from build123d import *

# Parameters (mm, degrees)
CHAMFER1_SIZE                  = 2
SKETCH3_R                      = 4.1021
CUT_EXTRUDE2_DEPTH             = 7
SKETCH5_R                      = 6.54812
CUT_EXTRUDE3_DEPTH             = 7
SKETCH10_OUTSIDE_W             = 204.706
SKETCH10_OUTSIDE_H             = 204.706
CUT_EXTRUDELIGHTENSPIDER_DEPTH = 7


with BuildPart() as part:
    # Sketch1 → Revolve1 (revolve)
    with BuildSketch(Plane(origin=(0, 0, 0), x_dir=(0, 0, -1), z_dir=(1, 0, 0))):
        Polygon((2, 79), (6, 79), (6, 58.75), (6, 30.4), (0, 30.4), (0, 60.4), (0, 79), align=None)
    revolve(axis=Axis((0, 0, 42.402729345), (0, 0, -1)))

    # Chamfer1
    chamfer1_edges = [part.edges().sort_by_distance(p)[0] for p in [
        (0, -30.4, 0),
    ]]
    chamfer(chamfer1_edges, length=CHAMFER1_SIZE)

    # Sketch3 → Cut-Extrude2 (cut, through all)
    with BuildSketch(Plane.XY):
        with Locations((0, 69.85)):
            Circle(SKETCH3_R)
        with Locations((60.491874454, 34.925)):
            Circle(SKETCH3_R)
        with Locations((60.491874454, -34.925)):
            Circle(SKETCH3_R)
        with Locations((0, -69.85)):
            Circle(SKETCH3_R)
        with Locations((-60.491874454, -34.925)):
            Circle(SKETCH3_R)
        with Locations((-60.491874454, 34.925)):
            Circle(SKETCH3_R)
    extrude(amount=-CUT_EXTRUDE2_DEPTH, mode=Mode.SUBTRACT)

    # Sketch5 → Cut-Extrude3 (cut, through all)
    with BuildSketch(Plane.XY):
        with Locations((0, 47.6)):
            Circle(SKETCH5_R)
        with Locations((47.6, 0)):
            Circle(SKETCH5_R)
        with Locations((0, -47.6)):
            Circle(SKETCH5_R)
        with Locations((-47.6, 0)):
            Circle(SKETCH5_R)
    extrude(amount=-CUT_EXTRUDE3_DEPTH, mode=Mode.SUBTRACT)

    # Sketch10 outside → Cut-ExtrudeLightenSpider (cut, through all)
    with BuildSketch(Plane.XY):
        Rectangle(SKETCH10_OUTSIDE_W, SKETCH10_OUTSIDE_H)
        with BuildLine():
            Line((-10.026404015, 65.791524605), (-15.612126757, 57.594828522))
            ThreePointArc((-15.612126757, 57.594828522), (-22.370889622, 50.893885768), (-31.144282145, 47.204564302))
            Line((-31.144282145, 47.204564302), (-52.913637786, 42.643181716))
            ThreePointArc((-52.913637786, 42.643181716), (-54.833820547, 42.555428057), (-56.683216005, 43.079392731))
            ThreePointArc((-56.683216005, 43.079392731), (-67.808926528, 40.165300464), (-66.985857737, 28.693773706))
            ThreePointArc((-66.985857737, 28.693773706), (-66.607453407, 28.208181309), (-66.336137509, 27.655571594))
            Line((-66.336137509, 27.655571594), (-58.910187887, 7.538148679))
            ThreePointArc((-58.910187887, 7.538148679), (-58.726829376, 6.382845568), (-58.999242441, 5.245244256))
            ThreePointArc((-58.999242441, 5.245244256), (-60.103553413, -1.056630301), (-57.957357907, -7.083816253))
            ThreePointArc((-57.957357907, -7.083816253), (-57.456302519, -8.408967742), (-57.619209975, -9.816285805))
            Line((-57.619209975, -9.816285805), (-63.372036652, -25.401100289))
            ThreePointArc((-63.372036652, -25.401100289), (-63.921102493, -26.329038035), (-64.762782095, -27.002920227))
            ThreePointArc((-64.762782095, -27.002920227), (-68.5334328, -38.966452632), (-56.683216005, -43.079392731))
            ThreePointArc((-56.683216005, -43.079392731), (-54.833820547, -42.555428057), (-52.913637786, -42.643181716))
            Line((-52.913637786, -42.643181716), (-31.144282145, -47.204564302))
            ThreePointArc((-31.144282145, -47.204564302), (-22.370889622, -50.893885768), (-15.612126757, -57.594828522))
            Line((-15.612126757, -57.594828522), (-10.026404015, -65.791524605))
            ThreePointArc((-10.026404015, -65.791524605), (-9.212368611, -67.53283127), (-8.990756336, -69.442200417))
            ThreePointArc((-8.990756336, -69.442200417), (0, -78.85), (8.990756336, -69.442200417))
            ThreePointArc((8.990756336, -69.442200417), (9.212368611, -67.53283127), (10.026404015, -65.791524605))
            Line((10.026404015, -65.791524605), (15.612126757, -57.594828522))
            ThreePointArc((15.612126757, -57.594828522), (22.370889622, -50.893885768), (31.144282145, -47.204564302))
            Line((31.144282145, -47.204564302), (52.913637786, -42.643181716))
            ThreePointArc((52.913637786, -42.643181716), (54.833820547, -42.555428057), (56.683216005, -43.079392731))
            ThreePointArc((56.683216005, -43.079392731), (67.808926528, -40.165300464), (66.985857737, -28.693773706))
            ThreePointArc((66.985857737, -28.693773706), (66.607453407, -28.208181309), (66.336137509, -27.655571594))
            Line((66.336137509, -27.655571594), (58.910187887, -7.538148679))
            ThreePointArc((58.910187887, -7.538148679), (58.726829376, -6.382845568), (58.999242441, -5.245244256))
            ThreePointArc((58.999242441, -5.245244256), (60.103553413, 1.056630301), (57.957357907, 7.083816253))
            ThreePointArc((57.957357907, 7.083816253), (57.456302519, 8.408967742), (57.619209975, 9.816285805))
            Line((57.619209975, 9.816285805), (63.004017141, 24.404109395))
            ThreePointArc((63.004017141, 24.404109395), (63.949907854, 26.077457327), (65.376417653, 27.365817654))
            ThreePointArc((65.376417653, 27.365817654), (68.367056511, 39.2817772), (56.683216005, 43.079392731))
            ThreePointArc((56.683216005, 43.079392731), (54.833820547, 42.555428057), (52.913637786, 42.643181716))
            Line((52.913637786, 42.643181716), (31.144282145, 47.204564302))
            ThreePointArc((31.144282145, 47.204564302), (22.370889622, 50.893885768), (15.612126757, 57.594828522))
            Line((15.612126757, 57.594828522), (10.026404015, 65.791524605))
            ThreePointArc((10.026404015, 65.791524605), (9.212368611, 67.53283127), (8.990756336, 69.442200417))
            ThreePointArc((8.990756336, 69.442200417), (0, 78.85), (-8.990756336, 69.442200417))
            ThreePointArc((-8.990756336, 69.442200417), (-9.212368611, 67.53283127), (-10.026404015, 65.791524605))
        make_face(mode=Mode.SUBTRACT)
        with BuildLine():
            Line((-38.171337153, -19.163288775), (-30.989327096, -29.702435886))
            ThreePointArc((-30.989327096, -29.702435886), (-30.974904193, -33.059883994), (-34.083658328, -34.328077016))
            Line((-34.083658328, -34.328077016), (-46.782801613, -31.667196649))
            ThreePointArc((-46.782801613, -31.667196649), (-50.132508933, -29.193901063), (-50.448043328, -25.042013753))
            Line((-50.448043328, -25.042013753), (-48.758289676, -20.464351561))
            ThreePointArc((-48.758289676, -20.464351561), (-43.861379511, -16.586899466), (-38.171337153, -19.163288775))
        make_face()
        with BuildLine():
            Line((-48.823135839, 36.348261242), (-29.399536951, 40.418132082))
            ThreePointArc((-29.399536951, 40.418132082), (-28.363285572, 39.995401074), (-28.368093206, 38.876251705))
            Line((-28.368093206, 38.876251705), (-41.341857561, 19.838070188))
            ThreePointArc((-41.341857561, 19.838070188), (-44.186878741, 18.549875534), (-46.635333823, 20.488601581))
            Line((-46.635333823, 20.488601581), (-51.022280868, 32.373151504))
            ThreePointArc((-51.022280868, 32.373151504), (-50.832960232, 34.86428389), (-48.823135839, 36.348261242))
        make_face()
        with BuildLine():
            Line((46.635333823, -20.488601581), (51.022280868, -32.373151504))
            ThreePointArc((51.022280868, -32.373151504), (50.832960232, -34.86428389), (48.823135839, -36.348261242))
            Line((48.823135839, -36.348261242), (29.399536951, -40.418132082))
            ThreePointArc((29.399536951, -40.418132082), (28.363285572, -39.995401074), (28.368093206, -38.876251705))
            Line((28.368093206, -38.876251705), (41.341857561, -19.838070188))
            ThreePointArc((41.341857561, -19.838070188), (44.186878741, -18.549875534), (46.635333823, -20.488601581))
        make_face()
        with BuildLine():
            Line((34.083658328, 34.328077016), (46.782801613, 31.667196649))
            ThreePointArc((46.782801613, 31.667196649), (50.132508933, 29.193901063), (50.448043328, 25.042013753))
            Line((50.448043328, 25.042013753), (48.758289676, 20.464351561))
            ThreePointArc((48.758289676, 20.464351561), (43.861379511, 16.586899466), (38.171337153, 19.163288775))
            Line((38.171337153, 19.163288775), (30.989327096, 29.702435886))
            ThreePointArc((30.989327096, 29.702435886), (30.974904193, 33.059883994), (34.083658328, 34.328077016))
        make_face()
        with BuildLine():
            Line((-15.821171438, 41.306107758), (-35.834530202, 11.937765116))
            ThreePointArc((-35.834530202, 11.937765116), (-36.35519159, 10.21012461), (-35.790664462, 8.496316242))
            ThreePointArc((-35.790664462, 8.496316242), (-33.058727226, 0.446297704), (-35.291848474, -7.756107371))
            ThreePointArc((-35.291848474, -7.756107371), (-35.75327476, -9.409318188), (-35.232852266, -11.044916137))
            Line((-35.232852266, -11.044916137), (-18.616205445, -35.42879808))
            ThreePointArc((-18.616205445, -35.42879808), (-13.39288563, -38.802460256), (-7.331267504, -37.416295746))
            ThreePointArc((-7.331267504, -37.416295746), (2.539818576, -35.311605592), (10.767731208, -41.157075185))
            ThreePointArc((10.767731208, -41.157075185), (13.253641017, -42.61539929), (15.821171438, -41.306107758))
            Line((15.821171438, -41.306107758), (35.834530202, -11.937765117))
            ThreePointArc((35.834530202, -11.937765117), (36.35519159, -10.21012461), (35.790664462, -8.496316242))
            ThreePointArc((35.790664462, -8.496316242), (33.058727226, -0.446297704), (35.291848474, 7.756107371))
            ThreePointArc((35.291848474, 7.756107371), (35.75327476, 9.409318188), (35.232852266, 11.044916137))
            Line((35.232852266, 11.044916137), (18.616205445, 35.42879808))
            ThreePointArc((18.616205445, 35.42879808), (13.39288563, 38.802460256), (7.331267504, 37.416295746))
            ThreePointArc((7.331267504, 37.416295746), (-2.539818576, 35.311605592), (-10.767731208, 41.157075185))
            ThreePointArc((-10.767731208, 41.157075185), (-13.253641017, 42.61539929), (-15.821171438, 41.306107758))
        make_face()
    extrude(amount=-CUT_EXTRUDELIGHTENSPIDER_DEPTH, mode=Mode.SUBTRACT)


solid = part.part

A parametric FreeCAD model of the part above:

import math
import FreeCAD as App
import Part
import Sketcher
Q = App.Units.Quantity


def edges_at(feature, points):
    """Names of the edges that pass closest to the given points."""
    edges = feature.Shape.Edges
    near = lambda p: min(range(len(edges)), key=lambda i: edges[i].distToShape(Part.Vertex(*p))[0])
    return sorted({f"Edge{near(p) + 1}" for p in points})

doc = App.newDocument("Part")
body = doc.addObject("PartDesign::Body", "Body")

# Sketch on YZ plane
sketch1 = body.newObject("Sketcher::SketchObject", "Sketch")
sketch1.AttachmentSupport = (doc.getObject("YZ_Plane"), [""])
sketch1.MapMode = "FlatFace"
sketch1.addGeometry([
    Part.LineSegment(App.Vector(79, -6, 0), App.Vector(79, 0, 0)),
    Part.LineSegment(App.Vector(79, 0, 0), App.Vector(30.4, 0, 0)),
    Part.LineSegment(App.Vector(30.4, 0, 0), App.Vector(30.4, -6, 0)),
    Part.LineSegment(App.Vector(30.4, -6, 0), App.Vector(79, -6, 0)),
], False)
sketch1.addConstraint([
    Sketcher.Constraint("Coincident", 0, 2, 1, 1),
    Sketcher.Constraint("Coincident", 1, 2, 2, 1),
    Sketcher.Constraint("Coincident", 2, 2, 3, 1),
    Sketcher.Constraint("Coincident", 3, 2, 0, 1),
    Sketcher.Constraint("Vertical", 0),
    Sketcher.Constraint("Horizontal", 1),
    Sketcher.Constraint("Vertical", 2),
    Sketcher.Constraint("Horizontal", 3),
    Sketcher.Constraint("PointOnObject", 0, 2, -1),
    Sketcher.Constraint("DistanceY", 0, 1, 0, 2, Q("6 mm")),
    Sketcher.Constraint("DistanceX", 1, 2, 1, 1, Q("48.6 mm")),
    Sketcher.Constraint("DistanceX", -1, 1, 0, 2, Q("79 mm")),
])
revolution = body.newObject("PartDesign::Revolution", "Revolution")
revolution.Profile = sketch1
revolution.ReferenceAxis = (sketch1, ["V_Axis"])
revolution.Angle = 360
doc.recompute()

chamfer = body.newObject("PartDesign::Chamfer", "Chamfer")
chamfer.Base = (revolution, edges_at(revolution, [(0, -30.4, 0)]))
chamfer.Size = 2

# Sketch on XY plane
sketch2 = body.newObject("Sketcher::SketchObject", "Sketch001")
sketch2.AttachmentSupport = (doc.getObject("XY_Plane"), [""])
sketch2.MapMode = "FlatFace"
sketch2.addGeometry([
    Part.Circle(App.Vector(0, 69.85, 0), App.Vector(0, 0, 1), 4.1021),  # 0
    Part.Circle(App.Vector(60.491874, 34.925, 0), App.Vector(0, 0, 1), 4.1021),  # 1
    Part.Circle(App.Vector(60.491874, -34.925, 0), App.Vector(0, 0, 1), 4.1021),  # 2
    Part.Circle(App.Vector(0, -69.85, 0), App.Vector(0, 0, 1), 4.1021),  # 3
    Part.Circle(App.Vector(-60.491874, -34.925, 0), App.Vector(0, 0, 1), 4.1021),  # 4
    Part.Circle(App.Vector(-60.491874, 34.925, 0), App.Vector(0, 0, 1), 4.1021),  # 5
], False)
sketch2.addConstraint([
    Sketcher.Constraint("Equal", 0, 1),
    Sketcher.Constraint("Equal", 1, 2),
    Sketcher.Constraint("Equal", 2, 3),
    Sketcher.Constraint("Equal", 3, 4),
    Sketcher.Constraint("Equal", 4, 5),
    Sketcher.Constraint("Symmetric", 0, 3, 3, 3, -1, 1),
    Sketcher.Constraint("Symmetric", 1, 3, 4, 3, -1, 1),
    Sketcher.Constraint("Symmetric", 2, 3, 5, 3, -1, 1),
    Sketcher.Constraint("Symmetric", 2, 3, 4, 3, -2),
    Sketcher.Constraint("PointOnObject", 0, 3, -2),
    Sketcher.Constraint("Diameter", 0, Q("8.2042 mm")),
    Sketcher.Constraint("DistanceY", 3, 3, 0, 3, Q("139.7 mm")),
    Sketcher.Constraint("DistanceY", 2, 3, 1, 3, Q("69.85 mm")),
    Sketcher.Constraint("DistanceX", 4, 3, 2, 3, Q("120.983749 mm")),
])
pocket1 = body.newObject("PartDesign::Pocket", "Pocket")
pocket1.Profile = sketch2
pocket1.Type = "ThroughAll"

# Sketch on XY plane
sketch3 = body.newObject("Sketcher::SketchObject", "Sketch002")
sketch3.AttachmentSupport = (doc.getObject("XY_Plane"), [""])
sketch3.MapMode = "FlatFace"
sketch3.addGeometry([
    Part.Circle(App.Vector(0, 47.6, 0), App.Vector(0, 0, 1), 6.54812),
    Part.Circle(App.Vector(47.6, 0, 0), App.Vector(0, 0, 1), 6.54812),
    Part.Circle(App.Vector(0, -47.6, 0), App.Vector(0, 0, 1), 6.54812),
    Part.Circle(App.Vector(-47.6, 0, 0), App.Vector(0, 0, 1), 6.54812),
], False)
sketch3.addConstraint([
    Sketcher.Constraint("Equal", 0, 1),
    Sketcher.Constraint("Equal", 1, 2),
    Sketcher.Constraint("Equal", 2, 3),
    Sketcher.Constraint("Symmetric", 0, 3, 2, 3, -1, 1),
    Sketcher.Constraint("Symmetric", 1, 3, 3, 3, -1, 1),
    Sketcher.Constraint("PointOnObject", 0, 3, -2),
    Sketcher.Constraint("PointOnObject", 1, 3, -1),
    Sketcher.Constraint("DistanceY", -1, 1, 0, 3, Q("47.6 mm")),
    Sketcher.Constraint("DistanceX", -1, 1, 1, 3, Q("47.6 mm")),
    Sketcher.Constraint("Diameter", 0, Q("13.09624 mm")),
])
pocket2 = body.newObject("PartDesign::Pocket", "Pocket001")
pocket2.Profile = sketch3
pocket2.Type = "ThroughAll"

# Sketch on XY plane
sketch4 = body.newObject("Sketcher::SketchObject", "Sketch003")
sketch4.AttachmentSupport = (doc.getObject("XY_Plane"), [""])
sketch4.MapMode = "FlatFace"
sketch4.addGeometry([
    Part.LineSegment(App.Vector(-102.353, 102.353, 0), App.Vector(-102.353, -102.353, 0)),  # 0
    Part.LineSegment(App.Vector(-102.353, -102.353, 0), App.Vector(102.353, -102.353, 0)),  # 1
    Part.LineSegment(App.Vector(102.353, -102.353, 0), App.Vector(102.353, 102.353, 0)),  # 2
    Part.LineSegment(App.Vector(102.353, 102.353, 0), App.Vector(-102.353, 102.353, 0)),  # 3
    Part.LineSegment(App.Vector(-15.612127, 57.594829, 0), App.Vector(-10.026404, 65.791525, 0)),  # 4
    Part.ArcOfCircle(Part.Circle(App.Vector(-14.984594, 69.170334, 0), App.Vector(0, 0, 1), 6), math.radians(-34.272876), math.radians(2.597022)),  # 5
    Part.ArcOfCircle(Part.Circle(App.Vector(0, 69.85, 0), App.Vector(0, 0, 1), 9), math.radians(-2.597022), math.radians(182.597022)),  # 6
    Part.ArcOfCircle(Part.Circle(App.Vector(14.984594, 69.170334, 0), App.Vector(0, 0, 1), 6), math.radians(177.402978), math.radians(214.272876)),  # 7
    Part.LineSegment(App.Vector(10.026404, 65.791525, 0), App.Vector(15.612127, 57.594829, 0)),  # 8
    Part.ArcOfCircle(Part.Circle(App.Vector(36.271251, 71.673201, 0), App.Vector(0, 0, 1), 25), math.radians(-145.727124), math.radians(-101.83411)),  # 9
    Part.LineSegment(App.Vector(31.144282, 47.204564, 0), App.Vector(52.913638, 42.643182, 0)),  # 10
    Part.ArcOfCircle(Part.Circle(App.Vector(54.14411, 48.515655, 0), App.Vector(0, 0, 1), 6), math.radians(-101.83411), math.radians(-64.964212)),  # 11
    Part.ArcOfCircle(Part.Circle(App.Vector(60.491874, 34.925, 0), App.Vector(0, 0, 1), 9), math.radians(-57.130527), math.radians(115.035788)),  # 12
    Part.ArcOfCircle(Part.Circle(App.Vector(68.63278, 22.326363, 0), App.Vector(0, 0, 1), 6), math.radians(122.869473), math.radians(159.73937)),  # 13
    Part.LineSegment(App.Vector(63.004017, 24.404109, 0), App.Vector(57.61921, 9.816286, 0)),  # 14
    Part.ArcOfCircle(Part.Circle(App.Vector(60.433591, 8.777412, 0), App.Vector(0, 0, 1), 3), math.radians(159.73937), math.radians(214.369804)),  # 15
    Part.ArcOfCircle(Part.Circle(App.Vector(47.6, 0, 0), App.Vector(0, 0, 1), 12.54812), math.radians(-24.709037), math.radians(34.369804)),  # 16
    Part.ArcOfCircle(Part.Circle(App.Vector(61.724569, -6.499275, 0), App.Vector(0, 0, 1), 3), math.radians(155.290963), math.radians(200.26063)),  # 17
    Part.LineSegment(App.Vector(58.910188, -7.538149, 0), App.Vector(66.336138, -27.655572, 0)),  # 18
    Part.ArcOfCircle(Part.Circle(App.Vector(69.150519, -26.616698, 0), App.Vector(0, 0, 1), 3), math.radians(-159.73937), math.radians(-136.182906)),  # 19
    Part.ArcOfCircle(Part.Circle(App.Vector(60.491874, -34.925, 0), App.Vector(0, 0, 1), 9), math.radians(-115.035788), math.radians(43.817094)),  # 20
    Part.ArcOfCircle(Part.Circle(App.Vector(54.14411, -48.515655, 0), App.Vector(0, 0, 1), 6), math.radians(64.964212), math.radians(101.83411)),  # 21
    Part.LineSegment(App.Vector(52.913638, -42.643182, 0), App.Vector(31.144282, -47.204564, 0)),  # 22
    Part.ArcOfCircle(Part.Circle(App.Vector(36.271251, -71.673201, 0), App.Vector(0, 0, 1), 25), math.radians(101.83411), math.radians(145.727124)),  # 23
    Part.LineSegment(App.Vector(15.612127, -57.594829, 0), App.Vector(10.026404, -65.791525, 0)),  # 24
    Part.ArcOfCircle(Part.Circle(App.Vector(14.984594, -69.170334, 0), App.Vector(0, 0, 1), 6), math.radians(145.727124), math.radians(182.597022)),  # 25
    Part.ArcOfCircle(Part.Circle(App.Vector(0, -69.85, 0), App.Vector(0, 0, 1), 9), math.radians(177.402978), math.radians(362.597022)),  # 26
    Part.ArcOfCircle(Part.Circle(App.Vector(-14.984594, -69.170334, 0), App.Vector(0, 0, 1), 6), math.radians(-2.597022), math.radians(34.272876)),  # 27
    Part.LineSegment(App.Vector(-10.026404, -65.791525, 0), App.Vector(-15.612127, -57.594829, 0)),  # 28
    Part.ArcOfCircle(Part.Circle(App.Vector(-36.271251, -71.673201, 0), App.Vector(0, 0, 1), 25), math.radians(34.272876), math.radians(78.16589)),  # 29
    Part.LineSegment(App.Vector(-31.144282, -47.204564, 0), App.Vector(-52.913638, -42.643182, 0)),  # 30
    Part.ArcOfCircle(Part.Circle(App.Vector(-54.14411, -48.515655, 0), App.Vector(0, 0, 1), 6), math.radians(78.16589), math.radians(115.035788)),  # 31
    Part.ArcOfCircle(Part.Circle(App.Vector(-60.491874, -34.925, 0), App.Vector(0, 0, 1), 9), math.radians(118.329748), math.radians(295.035788)),  # 32
    Part.ArcOfCircle(Part.Circle(App.Vector(-66.186418, -24.362227, 0), App.Vector(0, 0, 1), 3), math.radians(-61.670252), math.radians(-20.26063)),  # 33
    Part.LineSegment(App.Vector(-63.372037, -25.4011, 0), App.Vector(-57.61921, -9.816286, 0)),  # 34
    Part.ArcOfCircle(Part.Circle(App.Vector(-60.433591, -8.777412, 0), App.Vector(0, 0, 1), 3), math.radians(-20.26063), math.radians(34.369804)),  # 35
    Part.ArcOfCircle(Part.Circle(App.Vector(-47.6, 0, 0), App.Vector(0, 0, 1), 12.54812), math.radians(155.290963), math.radians(214.369804)),  # 36
    Part.ArcOfCircle(Part.Circle(App.Vector(-61.724569, 6.499275, 0), App.Vector(0, 0, 1), 3), math.radians(-24.709037), math.radians(20.26063)),  # 37
    Part.LineSegment(App.Vector(-58.910188, 7.538149, 0), App.Vector(-66.336138, 27.655572, 0)),  # 38
    Part.ArcOfCircle(Part.Circle(App.Vector(-69.150519, 26.616698, 0), App.Vector(0, 0, 1), 3), math.radians(20.26063), math.radians(43.817094)),  # 39
    Part.ArcOfCircle(Part.Circle(App.Vector(-60.491874, 34.925, 0), App.Vector(0, 0, 1), 9), math.radians(64.964212), math.radians(223.817094)),  # 40
    Part.ArcOfCircle(Part.Circle(App.Vector(-54.14411, 48.515655, 0), App.Vector(0, 0, 1), 6), math.radians(-115.035788), math.radians(-78.16589)),  # 41
    Part.LineSegment(App.Vector(-52.913638, 42.643182, 0), App.Vector(-31.144282, 47.204564, 0)),  # 42
    Part.ArcOfCircle(Part.Circle(App.Vector(-36.271251, 71.673201, 0), App.Vector(0, 0, 1), 25), math.radians(-78.16589), math.radians(-34.272876)),  # 43
    Part.LineSegment(App.Vector(-30.989327, -29.702436, 0), App.Vector(-38.171337, -19.163289, 0)),  # 44
    Part.ArcOfCircle(Part.Circle(App.Vector(-43.129527, -22.542098, 0), App.Vector(0, 0, 1), 6), math.radians(34.272876), math.radians(159.73937)),  # 45
    Part.LineSegment(App.Vector(-48.75829, -20.464352, 0), App.Vector(-50.448043, -25.042014, 0)),  # 46
    Part.ArcOfCircle(Part.Circle(App.Vector(-45.757408, -26.773469, 0), App.Vector(0, 0, 1), 5), math.radians(159.73937), math.radians(258.16589)),  # 47
    Part.LineSegment(App.Vector(-46.782802, -31.667197, 0), App.Vector(-34.083658, -34.328077, 0)),  # 48
    Part.ArcOfCircle(Part.Circle(App.Vector(-33.468422, -31.391841, 0), App.Vector(0, 0, 1), 3), math.radians(-101.83411), math.radians(34.272876)),  # 49
    Part.LineSegment(App.Vector(-29.399537, 40.418132, 0), App.Vector(-48.823136, 36.348261, 0)),  # 50
    Part.ArcOfCircle(Part.Circle(App.Vector(-48.2079, 33.412025, 0), App.Vector(0, 0, 1), 3), math.radians(101.83411), math.radians(200.26063)),  # 51
    Part.LineSegment(App.Vector(-51.022281, 32.373152, 0), App.Vector(-46.635334, 20.488602, 0)),  # 52
    Part.ArcOfCircle(Part.Circle(App.Vector(-43.820953, 21.527475, 0), App.Vector(0, 0, 1), 3), math.radians(-159.73937), math.radians(-34.272876)),  # 53
    Part.LineSegment(App.Vector(-41.341858, 19.83807, 0), App.Vector(-28.368093, 38.876252, 0)),  # 54
    Part.ArcOfCircle(Part.Circle(App.Vector(-29.194458, 39.439387, 0), App.Vector(0, 0, 1), 1), math.radians(-34.272876), math.radians(101.83411)),  # 55
    Part.LineSegment(App.Vector(51.022281, -32.373152, 0), App.Vector(46.635334, -20.488602, 0)),  # 56
    Part.ArcOfCircle(Part.Circle(App.Vector(43.820953, -21.527475, 0), App.Vector(0, 0, 1), 3), math.radians(20.26063), math.radians(145.727124)),  # 57
    Part.LineSegment(App.Vector(41.341858, -19.83807, 0), App.Vector(28.368093, -38.876252, 0)),  # 58
    Part.ArcOfCircle(Part.Circle(App.Vector(29.194458, -39.439387, 0), App.Vector(0, 0, 1), 1), math.radians(145.727124), math.radians(281.83411)),  # 59
    Part.LineSegment(App.Vector(29.399537, -40.418132, 0), App.Vector(48.823136, -36.348261, 0)),  # 60
    Part.ArcOfCircle(Part.Circle(App.Vector(48.2079, -33.412025, 0), App.Vector(0, 0, 1), 3), math.radians(-78.16589), math.radians(20.26063)),  # 61
    Part.LineSegment(App.Vector(46.782802, 31.667197, 0), App.Vector(34.083658, 34.328077, 0)),  # 62
    Part.ArcOfCircle(Part.Circle(App.Vector(33.468422, 31.391841, 0), App.Vector(0, 0, 1), 3), math.radians(78.16589), math.radians(214.272876)),  # 63
    Part.LineSegment(App.Vector(30.989327, 29.702436, 0), App.Vector(38.171337, 19.163289, 0)),  # 64
    Part.ArcOfCircle(Part.Circle(App.Vector(43.129527, 22.542098, 0), App.Vector(0, 0, 1), 6), math.radians(-145.727124), math.radians(-20.26063)),  # 65
    Part.LineSegment(App.Vector(48.75829, 20.464352, 0), App.Vector(50.448043, 25.042014, 0)),  # 66
    Part.ArcOfCircle(Part.Circle(App.Vector(45.757408, 26.773469, 0), App.Vector(0, 0, 1), 5), math.radians(-20.26063), math.radians(78.16589)),  # 67
    Part.LineSegment(App.Vector(-15.821171, 41.306108, 0), App.Vector(-35.83453, 11.937765, 0)),  # 68
    Part.ArcOfCircle(Part.Circle(App.Vector(-33.355435, 10.24836, 0), App.Vector(0, 0, 1), 3), math.radians(145.727124), math.radians(215.733415)),  # 69
    Part.ArcOfCircle(Part.Circle(App.Vector(-47.6, 0, 0), App.Vector(0, 0, 1), 14.54812), math.radians(-32.217499), math.radians(35.733415)),  # 70
    Part.ArcOfCircle(Part.Circle(App.Vector(-32.753757, -9.355511, 0), App.Vector(0, 0, 1), 3), math.radians(147.782501), math.radians(214.272876)),  # 71
    Part.LineSegment(App.Vector(-35.232852, -11.044916, 0), App.Vector(-18.616205, -35.428798, 0)),  # 72
    Part.ArcOfCircle(Part.Circle(App.Vector(-12.005286, -30.923719, 0), App.Vector(0, 0, 1), 8), math.radians(-145.727124), math.radians(-54.249817)),  # 73
    Part.ArcOfCircle(Part.Circle(App.Vector(0, -47.6, 0), App.Vector(0, 0, 1), 12.54812), math.radians(30.8944), math.radians(125.750183)),  # 74
    Part.ArcOfCircle(Part.Circle(App.Vector(13.342076, -39.616703, 0), App.Vector(0, 0, 1), 3), math.radians(-149.1056), math.radians(-34.272876)),  # 75
    Part.LineSegment(App.Vector(15.821171, -41.306108, 0), App.Vector(35.83453, -11.937765, 0)),  # 76
    Part.ArcOfCircle(Part.Circle(App.Vector(33.355435, -10.24836, 0), App.Vector(0, 0, 1), 3), math.radians(-34.272876), math.radians(35.733415)),  # 77
    Part.ArcOfCircle(Part.Circle(App.Vector(47.6, 0, 0), App.Vector(0, 0, 1), 14.54812), math.radians(147.782501), math.radians(215.733415)),  # 78
    Part.ArcOfCircle(Part.Circle(App.Vector(32.753757, 9.355511, 0), App.Vector(0, 0, 1), 3), math.radians(-32.217499), math.radians(34.272876)),  # 79
    Part.LineSegment(App.Vector(35.232852, 11.044916, 0), App.Vector(18.616205, 35.428798, 0)),  # 80
    Part.ArcOfCircle(Part.Circle(App.Vector(12.005286, 30.923719, 0), App.Vector(0, 0, 1), 8), math.radians(34.272876), math.radians(125.750183)),  # 81
    Part.ArcOfCircle(Part.Circle(App.Vector(0, 47.6, 0), App.Vector(0, 0, 1), 12.54812), math.radians(-149.1056), math.radians(-54.249817)),  # 82
    Part.ArcOfCircle(Part.Circle(App.Vector(-13.342076, 39.616703, 0), App.Vector(0, 0, 1), 3), math.radians(30.8944), math.radians(145.727124)),  # 83
], False)
sketch4.addConstraint([
    Sketcher.Constraint("Coincident", 0, 2, 1, 1),
    Sketcher.Constraint("Coincident", 1, 2, 2, 1),
    Sketcher.Constraint("Coincident", 2, 2, 3, 1),
    Sketcher.Constraint("Coincident", 3, 2, 0, 1),
    Sketcher.Constraint("Tangent", 4, 2, 5, 1),
    Sketcher.Constraint("Tangent", 5, 2, 6, 2),
    Sketcher.Constraint("Tangent", 6, 1, 7, 1),
    Sketcher.Constraint("Tangent", 7, 2, 8, 1),
    Sketcher.Constraint("Tangent", 8, 2, 9, 1),
    Sketcher.Constraint("Tangent", 9, 2, 10, 1),
    Sketcher.Constraint("Tangent", 10, 2, 11, 1),
    Sketcher.Constraint("Tangent", 11, 2, 12, 2),
    Sketcher.Constraint("Tangent", 12, 1, 13, 1),
    Sketcher.Constraint("Tangent", 13, 2, 14, 1),
    Sketcher.Constraint("Tangent", 14, 2, 15, 1),
    Sketcher.Constraint("Tangent", 15, 2, 16, 2),
    Sketcher.Constraint("Tangent", 16, 1, 17, 1),
    Sketcher.Constraint("Tangent", 17, 2, 18, 1),
    Sketcher.Constraint("Tangent", 18, 2, 19, 1),
    Sketcher.Constraint("Tangent", 19, 2, 20, 2),
    Sketcher.Constraint("Tangent", 20, 1, 21, 1),
    Sketcher.Constraint("Tangent", 21, 2, 22, 1),
    Sketcher.Constraint("Tangent", 22, 2, 23, 1),
    Sketcher.Constraint("Tangent", 23, 2, 24, 1),
    Sketcher.Constraint("Tangent", 24, 2, 25, 1),
    Sketcher.Constraint("Tangent", 25, 2, 26, 2),
    Sketcher.Constraint("Tangent", 26, 1, 27, 1),
    Sketcher.Constraint("Tangent", 27, 2, 28, 1),
    Sketcher.Constraint("Tangent", 28, 2, 29, 1),
    Sketcher.Constraint("Tangent", 29, 2, 30, 1),
    Sketcher.Constraint("Tangent", 30, 2, 31, 1),
    Sketcher.Constraint("Tangent", 31, 2, 32, 2),
    Sketcher.Constraint("Tangent", 32, 1, 33, 1),
    Sketcher.Constraint("Tangent", 33, 2, 34, 1),
    Sketcher.Constraint("Tangent", 34, 2, 35, 1),
    Sketcher.Constraint("Tangent", 35, 2, 36, 2),
    Sketcher.Constraint("Tangent", 36, 1, 37, 1),
    Sketcher.Constraint("Tangent", 37, 2, 38, 1),
    Sketcher.Constraint("Tangent", 38, 2, 39, 1),
    Sketcher.Constraint("Tangent", 39, 2, 40, 2),
    Sketcher.Constraint("Tangent", 40, 1, 41, 1),
    Sketcher.Constraint("Tangent", 41, 2, 42, 1),
    Sketcher.Constraint("Tangent", 42, 2, 43, 1),
    Sketcher.Constraint("Tangent", 43, 2, 4, 1),
    Sketcher.Constraint("Tangent", 44, 2, 45, 1),
    Sketcher.Constraint("Tangent", 45, 2, 46, 1),
    Sketcher.Constraint("Tangent", 46, 2, 47, 1),
    Sketcher.Constraint("Tangent", 47, 2, 48, 1),
    Sketcher.Constraint("Tangent", 48, 2, 49, 1),
    Sketcher.Constraint("Tangent", 49, 2, 44, 1),
    Sketcher.Constraint("Tangent", 50, 2, 51, 1),
    Sketcher.Constraint("Tangent", 51, 2, 52, 1),
    Sketcher.Constraint("Tangent", 52, 2, 53, 1),
    Sketcher.Constraint("Tangent", 53, 2, 54, 1),
    Sketcher.Constraint("Tangent", 54, 2, 55, 1),
    Sketcher.Constraint("Tangent", 55, 2, 50, 1),
    Sketcher.Constraint("Tangent", 56, 2, 57, 1),
    Sketcher.Constraint("Tangent", 57, 2, 58, 1),
    Sketcher.Constraint("Tangent", 58, 2, 59, 1),
    Sketcher.Constraint("Tangent", 59, 2, 60, 1),
    Sketcher.Constraint("Tangent", 60, 2, 61, 1),
    Sketcher.Constraint("Tangent", 61, 2, 56, 1),
    Sketcher.Constraint("Tangent", 62, 2, 63, 1),
    Sketcher.Constraint("Tangent", 63, 2, 64, 1),
    Sketcher.Constraint("Tangent", 64, 2, 65, 1),
    Sketcher.Constraint("Tangent", 65, 2, 66, 1),
    Sketcher.Constraint("Tangent", 66, 2, 67, 1),
    Sketcher.Constraint("Tangent", 67, 2, 62, 1),
    Sketcher.Constraint("Tangent", 68, 2, 69, 1),
    Sketcher.Constraint("Tangent", 69, 2, 70, 2),
    Sketcher.Constraint("Tangent", 70, 1, 71, 1),
    Sketcher.Constraint("Tangent", 71, 2, 72, 1),
    Sketcher.Constraint("Tangent", 72, 2, 73, 1),
    Sketcher.Constraint("Tangent", 73, 2, 74, 2),
    Sketcher.Constraint("Tangent", 74, 1, 75, 1),
    Sketcher.Constraint("Tangent", 75, 2, 76, 1),
    Sketcher.Constraint("Tangent", 76, 2, 77, 1),
    Sketcher.Constraint("Tangent", 77, 2, 78, 2),
    Sketcher.Constraint("Tangent", 78, 1, 79, 1),
    Sketcher.Constraint("Tangent", 79, 2, 80, 1),
    Sketcher.Constraint("Tangent", 80, 2, 81, 1),
    Sketcher.Constraint("Tangent", 81, 2, 82, 2),
    Sketcher.Constraint("Tangent", 82, 1, 83, 1),
    Sketcher.Constraint("Tangent", 83, 2, 68, 1),
    Sketcher.Constraint("Vertical", 0),
    Sketcher.Constraint("Horizontal", 1),
    Sketcher.Constraint("Vertical", 2),
    Sketcher.Constraint("Horizontal", 3),
    Sketcher.Constraint("Coincident", 70, 3, 36, 3),
    Sketcher.Constraint("Coincident", 78, 3, 16, 3),
    Sketcher.Constraint("Equal", 5, 7),
    Sketcher.Constraint("Equal", 7, 11),
    Sketcher.Constraint("Equal", 6, 12),
    Sketcher.Constraint("Equal", 11, 13),
    Sketcher.Constraint("Equal", 15, 17),
    Sketcher.Constraint("Equal", 17, 19),
    Sketcher.Constraint("Equal", 12, 20),
    Sketcher.Constraint("Equal", 13, 21),
    Sketcher.Constraint("Equal", 9, 23),
    Sketcher.Constraint("Equal", 21, 25),
    Sketcher.Constraint("Equal", 20, 26),
    Sketcher.Constraint("Equal", 25, 27),
    Sketcher.Constraint("Equal", 23, 29),
    Sketcher.Constraint("Equal", 27, 31),
    Sketcher.Constraint("Equal", 26, 32),
    Sketcher.Constraint("Equal", 19, 33),
    Sketcher.Constraint("Equal", 33, 35),
    Sketcher.Constraint("Equal", 16, 36),
    Sketcher.Constraint("Equal", 35, 37),
    Sketcher.Constraint("Equal", 37, 39),
    Sketcher.Constraint("Equal", 32, 40),
    Sketcher.Constraint("Equal", 31, 41),
    Sketcher.Constraint("Equal", 29, 43),
    Sketcher.Constraint("Equal", 41, 45),
    Sketcher.Constraint("Equal", 39, 49),
    Sketcher.Constraint("Equal", 49, 51),
    Sketcher.Constraint("Equal", 51, 53),
    Sketcher.Constraint("Equal", 53, 57),
    Sketcher.Constraint("Equal", 55, 59),
    Sketcher.Constraint("Equal", 57, 61),
    Sketcher.Constraint("Equal", 61, 63),
    Sketcher.Constraint("Equal", 45, 65),
    Sketcher.Constraint("Equal", 47, 67),
    Sketcher.Constraint("Equal", 63, 69),
    Sketcher.Constraint("Equal", 69, 71),
    Sketcher.Constraint("Equal", 36, 74),
    Sketcher.Constraint("Equal", 71, 75),
    Sketcher.Constraint("Equal", 75, 77),
    Sketcher.Constraint("Equal", 70, 78),
    Sketcher.Constraint("Equal", 77, 79),
    Sketcher.Constraint("Equal", 73, 81),
    Sketcher.Constraint("Equal", 74, 82),
    Sketcher.Constraint("Equal", 79, 83),
    Sketcher.Constraint("Symmetric", 5, 3, 25, 3, -1, 1),
    Sketcher.Constraint("Symmetric", 7, 3, 27, 3, -1, 1),
    Sketcher.Constraint("Symmetric", 9, 3, 29, 3, -1, 1),
    Sketcher.Constraint("Symmetric", 11, 3, 31, 3, -1, 1),
    Sketcher.Constraint("Symmetric", 15, 3, 35, 3, -1, 1),
    Sketcher.Constraint("Symmetric", 17, 3, 37, 3, -1, 1),
    Sketcher.Constraint("Symmetric", 19, 3, 39, 3, -1, 1),
    Sketcher.Constraint("Symmetric", 21, 3, 41, 3, -1, 1),
    Sketcher.Constraint("Symmetric", 23, 3, 43, 3, -1, 1),
    Sketcher.Constraint("Symmetric", 53, 3, 57, 3, -1, 1),
    Sketcher.Constraint("Symmetric", 55, 3, 59, 3, -1, 1),
    Sketcher.Constraint("Symmetric", 51, 3, 61, 3, -1, 1),
    Sketcher.Constraint("Symmetric", 49, 3, 63, 3, -1, 1),
    Sketcher.Constraint("Symmetric", 45, 3, 65, 3, -1, 1),
    Sketcher.Constraint("Symmetric", 47, 3, 67, 3, -1, 1),
    Sketcher.Constraint("Symmetric", 73, 3, 81, 3, -1, 1),
    Sketcher.Constraint("Symmetric", 75, 3, 83, 3, -1, 1),
    Sketcher.Constraint("Symmetric", 0, 2, 2, 2, -1, 1),
    Sketcher.Constraint("Symmetric", 5, 3, 7, 3, -2),
    Sketcher.Constraint("Symmetric", 23, 3, 29, 3, -2),
    Sketcher.Constraint("Symmetric", 21, 3, 31, 3, -2),
    Sketcher.Constraint("PointOnObject", 16, 3, -1),
    Sketcher.Constraint("PointOnObject", 74, 3, -2),
    Sketcher.Constraint("Parallel", 14, 34),
    Sketcher.Constraint("Parallel", 28, 44),
    Sketcher.Constraint("Parallel", 34, 46),
    Sketcher.Constraint("Parallel", 30, 48),
    Sketcher.Constraint("Parallel", 42, 50),
    Sketcher.Constraint("Parallel", 38, 52),
    Sketcher.Constraint("Parallel", 24, 54),
    Sketcher.Constraint("Parallel", 58, 68),
    Sketcher.Constraint("Parallel", 64, 72),
    Sketcher.Constraint("Parallel", 68, 76),
    Sketcher.Constraint("Parallel", 72, 80),
    Sketcher.Constraint("Horizontal", 20, 3, 32, 3),
    Sketcher.Constraint("Horizontal", 12, 3, 40, 3),
    Sketcher.Constraint("Equal", 3, 0),
    Sketcher.Constraint("Radius", 5, Q("6 mm")),
    Sketcher.Constraint("Radius", 6, Q("9 mm")),
    Sketcher.Constraint("Radius", 9, Q("25 mm")),
    Sketcher.Constraint("Radius", 15, Q("3 mm")),
    Sketcher.Constraint("Radius", 47, Q("5 mm")),
    Sketcher.Constraint("Radius", 55, Q("1 mm")),
    Sketcher.Constraint("Radius", 73, Q("8 mm")),
    Sketcher.Constraint("DistanceX", -1, 1, 16, 3, Q("47.6 mm")),
    Sketcher.Constraint("DistanceY", 74, 3, -1, 1, Q("47.6 mm")),
    Sketcher.Constraint("DistanceX", 1, 1, 1, 2, Q("204.706 mm")),
    Sketcher.Constraint("DistanceY", -1, 1, 6, 3, Q("69.85 mm")),
    Sketcher.Constraint("Radius", 16, Q("12.54812 mm")),
    Sketcher.Constraint("Radius", 70, Q("14.54812 mm")),
    Sketcher.Constraint("DistanceY", -1, 1, 12, 3, Q("34.925 mm")),
    Sketcher.Constraint("Distance", 10, Q("22.242101 mm")),
    Sketcher.Constraint("Distance", 72, Q("29.5074 mm")),
    Sketcher.Constraint("DistanceY", -1, 1, 9, 3, Q("71.673201 mm")),
    Sketcher.Constraint("DistanceY", 19, 3, -1, 1, Q("26.616698 mm")),
    Sketcher.Constraint("DistanceY", 45, 3, -1, 1, Q("22.542098 mm")),
    Sketcher.Constraint("DistanceX", 51, 3, -1, 1, Q("48.2079 mm")),
    Sketcher.Constraint("DistanceY", -1, 1, 5, 2, Q("69.4422 mm")),
    Sketcher.Constraint("DistanceY", 33, 2, -1, 1, Q("25.4011 mm")),
    Sketcher.Constraint("DistanceX", 47, 2, -1, 1, Q("46.782802 mm")),
    Sketcher.Constraint("DistanceY", -1, 1, 52, 2, Q("20.488602 mm")),
    Sketcher.Constraint("DistanceY", 72, 2, -1, 1, Q("35.428798 mm")),
    Sketcher.Constraint("Distance", 18, Q("21.44424 mm")),
    Sketcher.Constraint("Distance", 34, Q("16.61269 mm")),
    Sketcher.Constraint("Distance", 48, Q("12.974919 mm")),
    Sketcher.Constraint("Distance", 52, Q("12.668379 mm")),
    Sketcher.Constraint("Distance", 68, Q("35.539191 mm")),
    Sketcher.Constraint("DistanceX", -1, 1, 11, 3, Q("54.14411 mm")),
])
pocket3 = body.newObject("PartDesign::Pocket", "Pocket002")
pocket3.Profile = sketch4
pocket3.Type = "ThroughAll"

doc.recompute()
